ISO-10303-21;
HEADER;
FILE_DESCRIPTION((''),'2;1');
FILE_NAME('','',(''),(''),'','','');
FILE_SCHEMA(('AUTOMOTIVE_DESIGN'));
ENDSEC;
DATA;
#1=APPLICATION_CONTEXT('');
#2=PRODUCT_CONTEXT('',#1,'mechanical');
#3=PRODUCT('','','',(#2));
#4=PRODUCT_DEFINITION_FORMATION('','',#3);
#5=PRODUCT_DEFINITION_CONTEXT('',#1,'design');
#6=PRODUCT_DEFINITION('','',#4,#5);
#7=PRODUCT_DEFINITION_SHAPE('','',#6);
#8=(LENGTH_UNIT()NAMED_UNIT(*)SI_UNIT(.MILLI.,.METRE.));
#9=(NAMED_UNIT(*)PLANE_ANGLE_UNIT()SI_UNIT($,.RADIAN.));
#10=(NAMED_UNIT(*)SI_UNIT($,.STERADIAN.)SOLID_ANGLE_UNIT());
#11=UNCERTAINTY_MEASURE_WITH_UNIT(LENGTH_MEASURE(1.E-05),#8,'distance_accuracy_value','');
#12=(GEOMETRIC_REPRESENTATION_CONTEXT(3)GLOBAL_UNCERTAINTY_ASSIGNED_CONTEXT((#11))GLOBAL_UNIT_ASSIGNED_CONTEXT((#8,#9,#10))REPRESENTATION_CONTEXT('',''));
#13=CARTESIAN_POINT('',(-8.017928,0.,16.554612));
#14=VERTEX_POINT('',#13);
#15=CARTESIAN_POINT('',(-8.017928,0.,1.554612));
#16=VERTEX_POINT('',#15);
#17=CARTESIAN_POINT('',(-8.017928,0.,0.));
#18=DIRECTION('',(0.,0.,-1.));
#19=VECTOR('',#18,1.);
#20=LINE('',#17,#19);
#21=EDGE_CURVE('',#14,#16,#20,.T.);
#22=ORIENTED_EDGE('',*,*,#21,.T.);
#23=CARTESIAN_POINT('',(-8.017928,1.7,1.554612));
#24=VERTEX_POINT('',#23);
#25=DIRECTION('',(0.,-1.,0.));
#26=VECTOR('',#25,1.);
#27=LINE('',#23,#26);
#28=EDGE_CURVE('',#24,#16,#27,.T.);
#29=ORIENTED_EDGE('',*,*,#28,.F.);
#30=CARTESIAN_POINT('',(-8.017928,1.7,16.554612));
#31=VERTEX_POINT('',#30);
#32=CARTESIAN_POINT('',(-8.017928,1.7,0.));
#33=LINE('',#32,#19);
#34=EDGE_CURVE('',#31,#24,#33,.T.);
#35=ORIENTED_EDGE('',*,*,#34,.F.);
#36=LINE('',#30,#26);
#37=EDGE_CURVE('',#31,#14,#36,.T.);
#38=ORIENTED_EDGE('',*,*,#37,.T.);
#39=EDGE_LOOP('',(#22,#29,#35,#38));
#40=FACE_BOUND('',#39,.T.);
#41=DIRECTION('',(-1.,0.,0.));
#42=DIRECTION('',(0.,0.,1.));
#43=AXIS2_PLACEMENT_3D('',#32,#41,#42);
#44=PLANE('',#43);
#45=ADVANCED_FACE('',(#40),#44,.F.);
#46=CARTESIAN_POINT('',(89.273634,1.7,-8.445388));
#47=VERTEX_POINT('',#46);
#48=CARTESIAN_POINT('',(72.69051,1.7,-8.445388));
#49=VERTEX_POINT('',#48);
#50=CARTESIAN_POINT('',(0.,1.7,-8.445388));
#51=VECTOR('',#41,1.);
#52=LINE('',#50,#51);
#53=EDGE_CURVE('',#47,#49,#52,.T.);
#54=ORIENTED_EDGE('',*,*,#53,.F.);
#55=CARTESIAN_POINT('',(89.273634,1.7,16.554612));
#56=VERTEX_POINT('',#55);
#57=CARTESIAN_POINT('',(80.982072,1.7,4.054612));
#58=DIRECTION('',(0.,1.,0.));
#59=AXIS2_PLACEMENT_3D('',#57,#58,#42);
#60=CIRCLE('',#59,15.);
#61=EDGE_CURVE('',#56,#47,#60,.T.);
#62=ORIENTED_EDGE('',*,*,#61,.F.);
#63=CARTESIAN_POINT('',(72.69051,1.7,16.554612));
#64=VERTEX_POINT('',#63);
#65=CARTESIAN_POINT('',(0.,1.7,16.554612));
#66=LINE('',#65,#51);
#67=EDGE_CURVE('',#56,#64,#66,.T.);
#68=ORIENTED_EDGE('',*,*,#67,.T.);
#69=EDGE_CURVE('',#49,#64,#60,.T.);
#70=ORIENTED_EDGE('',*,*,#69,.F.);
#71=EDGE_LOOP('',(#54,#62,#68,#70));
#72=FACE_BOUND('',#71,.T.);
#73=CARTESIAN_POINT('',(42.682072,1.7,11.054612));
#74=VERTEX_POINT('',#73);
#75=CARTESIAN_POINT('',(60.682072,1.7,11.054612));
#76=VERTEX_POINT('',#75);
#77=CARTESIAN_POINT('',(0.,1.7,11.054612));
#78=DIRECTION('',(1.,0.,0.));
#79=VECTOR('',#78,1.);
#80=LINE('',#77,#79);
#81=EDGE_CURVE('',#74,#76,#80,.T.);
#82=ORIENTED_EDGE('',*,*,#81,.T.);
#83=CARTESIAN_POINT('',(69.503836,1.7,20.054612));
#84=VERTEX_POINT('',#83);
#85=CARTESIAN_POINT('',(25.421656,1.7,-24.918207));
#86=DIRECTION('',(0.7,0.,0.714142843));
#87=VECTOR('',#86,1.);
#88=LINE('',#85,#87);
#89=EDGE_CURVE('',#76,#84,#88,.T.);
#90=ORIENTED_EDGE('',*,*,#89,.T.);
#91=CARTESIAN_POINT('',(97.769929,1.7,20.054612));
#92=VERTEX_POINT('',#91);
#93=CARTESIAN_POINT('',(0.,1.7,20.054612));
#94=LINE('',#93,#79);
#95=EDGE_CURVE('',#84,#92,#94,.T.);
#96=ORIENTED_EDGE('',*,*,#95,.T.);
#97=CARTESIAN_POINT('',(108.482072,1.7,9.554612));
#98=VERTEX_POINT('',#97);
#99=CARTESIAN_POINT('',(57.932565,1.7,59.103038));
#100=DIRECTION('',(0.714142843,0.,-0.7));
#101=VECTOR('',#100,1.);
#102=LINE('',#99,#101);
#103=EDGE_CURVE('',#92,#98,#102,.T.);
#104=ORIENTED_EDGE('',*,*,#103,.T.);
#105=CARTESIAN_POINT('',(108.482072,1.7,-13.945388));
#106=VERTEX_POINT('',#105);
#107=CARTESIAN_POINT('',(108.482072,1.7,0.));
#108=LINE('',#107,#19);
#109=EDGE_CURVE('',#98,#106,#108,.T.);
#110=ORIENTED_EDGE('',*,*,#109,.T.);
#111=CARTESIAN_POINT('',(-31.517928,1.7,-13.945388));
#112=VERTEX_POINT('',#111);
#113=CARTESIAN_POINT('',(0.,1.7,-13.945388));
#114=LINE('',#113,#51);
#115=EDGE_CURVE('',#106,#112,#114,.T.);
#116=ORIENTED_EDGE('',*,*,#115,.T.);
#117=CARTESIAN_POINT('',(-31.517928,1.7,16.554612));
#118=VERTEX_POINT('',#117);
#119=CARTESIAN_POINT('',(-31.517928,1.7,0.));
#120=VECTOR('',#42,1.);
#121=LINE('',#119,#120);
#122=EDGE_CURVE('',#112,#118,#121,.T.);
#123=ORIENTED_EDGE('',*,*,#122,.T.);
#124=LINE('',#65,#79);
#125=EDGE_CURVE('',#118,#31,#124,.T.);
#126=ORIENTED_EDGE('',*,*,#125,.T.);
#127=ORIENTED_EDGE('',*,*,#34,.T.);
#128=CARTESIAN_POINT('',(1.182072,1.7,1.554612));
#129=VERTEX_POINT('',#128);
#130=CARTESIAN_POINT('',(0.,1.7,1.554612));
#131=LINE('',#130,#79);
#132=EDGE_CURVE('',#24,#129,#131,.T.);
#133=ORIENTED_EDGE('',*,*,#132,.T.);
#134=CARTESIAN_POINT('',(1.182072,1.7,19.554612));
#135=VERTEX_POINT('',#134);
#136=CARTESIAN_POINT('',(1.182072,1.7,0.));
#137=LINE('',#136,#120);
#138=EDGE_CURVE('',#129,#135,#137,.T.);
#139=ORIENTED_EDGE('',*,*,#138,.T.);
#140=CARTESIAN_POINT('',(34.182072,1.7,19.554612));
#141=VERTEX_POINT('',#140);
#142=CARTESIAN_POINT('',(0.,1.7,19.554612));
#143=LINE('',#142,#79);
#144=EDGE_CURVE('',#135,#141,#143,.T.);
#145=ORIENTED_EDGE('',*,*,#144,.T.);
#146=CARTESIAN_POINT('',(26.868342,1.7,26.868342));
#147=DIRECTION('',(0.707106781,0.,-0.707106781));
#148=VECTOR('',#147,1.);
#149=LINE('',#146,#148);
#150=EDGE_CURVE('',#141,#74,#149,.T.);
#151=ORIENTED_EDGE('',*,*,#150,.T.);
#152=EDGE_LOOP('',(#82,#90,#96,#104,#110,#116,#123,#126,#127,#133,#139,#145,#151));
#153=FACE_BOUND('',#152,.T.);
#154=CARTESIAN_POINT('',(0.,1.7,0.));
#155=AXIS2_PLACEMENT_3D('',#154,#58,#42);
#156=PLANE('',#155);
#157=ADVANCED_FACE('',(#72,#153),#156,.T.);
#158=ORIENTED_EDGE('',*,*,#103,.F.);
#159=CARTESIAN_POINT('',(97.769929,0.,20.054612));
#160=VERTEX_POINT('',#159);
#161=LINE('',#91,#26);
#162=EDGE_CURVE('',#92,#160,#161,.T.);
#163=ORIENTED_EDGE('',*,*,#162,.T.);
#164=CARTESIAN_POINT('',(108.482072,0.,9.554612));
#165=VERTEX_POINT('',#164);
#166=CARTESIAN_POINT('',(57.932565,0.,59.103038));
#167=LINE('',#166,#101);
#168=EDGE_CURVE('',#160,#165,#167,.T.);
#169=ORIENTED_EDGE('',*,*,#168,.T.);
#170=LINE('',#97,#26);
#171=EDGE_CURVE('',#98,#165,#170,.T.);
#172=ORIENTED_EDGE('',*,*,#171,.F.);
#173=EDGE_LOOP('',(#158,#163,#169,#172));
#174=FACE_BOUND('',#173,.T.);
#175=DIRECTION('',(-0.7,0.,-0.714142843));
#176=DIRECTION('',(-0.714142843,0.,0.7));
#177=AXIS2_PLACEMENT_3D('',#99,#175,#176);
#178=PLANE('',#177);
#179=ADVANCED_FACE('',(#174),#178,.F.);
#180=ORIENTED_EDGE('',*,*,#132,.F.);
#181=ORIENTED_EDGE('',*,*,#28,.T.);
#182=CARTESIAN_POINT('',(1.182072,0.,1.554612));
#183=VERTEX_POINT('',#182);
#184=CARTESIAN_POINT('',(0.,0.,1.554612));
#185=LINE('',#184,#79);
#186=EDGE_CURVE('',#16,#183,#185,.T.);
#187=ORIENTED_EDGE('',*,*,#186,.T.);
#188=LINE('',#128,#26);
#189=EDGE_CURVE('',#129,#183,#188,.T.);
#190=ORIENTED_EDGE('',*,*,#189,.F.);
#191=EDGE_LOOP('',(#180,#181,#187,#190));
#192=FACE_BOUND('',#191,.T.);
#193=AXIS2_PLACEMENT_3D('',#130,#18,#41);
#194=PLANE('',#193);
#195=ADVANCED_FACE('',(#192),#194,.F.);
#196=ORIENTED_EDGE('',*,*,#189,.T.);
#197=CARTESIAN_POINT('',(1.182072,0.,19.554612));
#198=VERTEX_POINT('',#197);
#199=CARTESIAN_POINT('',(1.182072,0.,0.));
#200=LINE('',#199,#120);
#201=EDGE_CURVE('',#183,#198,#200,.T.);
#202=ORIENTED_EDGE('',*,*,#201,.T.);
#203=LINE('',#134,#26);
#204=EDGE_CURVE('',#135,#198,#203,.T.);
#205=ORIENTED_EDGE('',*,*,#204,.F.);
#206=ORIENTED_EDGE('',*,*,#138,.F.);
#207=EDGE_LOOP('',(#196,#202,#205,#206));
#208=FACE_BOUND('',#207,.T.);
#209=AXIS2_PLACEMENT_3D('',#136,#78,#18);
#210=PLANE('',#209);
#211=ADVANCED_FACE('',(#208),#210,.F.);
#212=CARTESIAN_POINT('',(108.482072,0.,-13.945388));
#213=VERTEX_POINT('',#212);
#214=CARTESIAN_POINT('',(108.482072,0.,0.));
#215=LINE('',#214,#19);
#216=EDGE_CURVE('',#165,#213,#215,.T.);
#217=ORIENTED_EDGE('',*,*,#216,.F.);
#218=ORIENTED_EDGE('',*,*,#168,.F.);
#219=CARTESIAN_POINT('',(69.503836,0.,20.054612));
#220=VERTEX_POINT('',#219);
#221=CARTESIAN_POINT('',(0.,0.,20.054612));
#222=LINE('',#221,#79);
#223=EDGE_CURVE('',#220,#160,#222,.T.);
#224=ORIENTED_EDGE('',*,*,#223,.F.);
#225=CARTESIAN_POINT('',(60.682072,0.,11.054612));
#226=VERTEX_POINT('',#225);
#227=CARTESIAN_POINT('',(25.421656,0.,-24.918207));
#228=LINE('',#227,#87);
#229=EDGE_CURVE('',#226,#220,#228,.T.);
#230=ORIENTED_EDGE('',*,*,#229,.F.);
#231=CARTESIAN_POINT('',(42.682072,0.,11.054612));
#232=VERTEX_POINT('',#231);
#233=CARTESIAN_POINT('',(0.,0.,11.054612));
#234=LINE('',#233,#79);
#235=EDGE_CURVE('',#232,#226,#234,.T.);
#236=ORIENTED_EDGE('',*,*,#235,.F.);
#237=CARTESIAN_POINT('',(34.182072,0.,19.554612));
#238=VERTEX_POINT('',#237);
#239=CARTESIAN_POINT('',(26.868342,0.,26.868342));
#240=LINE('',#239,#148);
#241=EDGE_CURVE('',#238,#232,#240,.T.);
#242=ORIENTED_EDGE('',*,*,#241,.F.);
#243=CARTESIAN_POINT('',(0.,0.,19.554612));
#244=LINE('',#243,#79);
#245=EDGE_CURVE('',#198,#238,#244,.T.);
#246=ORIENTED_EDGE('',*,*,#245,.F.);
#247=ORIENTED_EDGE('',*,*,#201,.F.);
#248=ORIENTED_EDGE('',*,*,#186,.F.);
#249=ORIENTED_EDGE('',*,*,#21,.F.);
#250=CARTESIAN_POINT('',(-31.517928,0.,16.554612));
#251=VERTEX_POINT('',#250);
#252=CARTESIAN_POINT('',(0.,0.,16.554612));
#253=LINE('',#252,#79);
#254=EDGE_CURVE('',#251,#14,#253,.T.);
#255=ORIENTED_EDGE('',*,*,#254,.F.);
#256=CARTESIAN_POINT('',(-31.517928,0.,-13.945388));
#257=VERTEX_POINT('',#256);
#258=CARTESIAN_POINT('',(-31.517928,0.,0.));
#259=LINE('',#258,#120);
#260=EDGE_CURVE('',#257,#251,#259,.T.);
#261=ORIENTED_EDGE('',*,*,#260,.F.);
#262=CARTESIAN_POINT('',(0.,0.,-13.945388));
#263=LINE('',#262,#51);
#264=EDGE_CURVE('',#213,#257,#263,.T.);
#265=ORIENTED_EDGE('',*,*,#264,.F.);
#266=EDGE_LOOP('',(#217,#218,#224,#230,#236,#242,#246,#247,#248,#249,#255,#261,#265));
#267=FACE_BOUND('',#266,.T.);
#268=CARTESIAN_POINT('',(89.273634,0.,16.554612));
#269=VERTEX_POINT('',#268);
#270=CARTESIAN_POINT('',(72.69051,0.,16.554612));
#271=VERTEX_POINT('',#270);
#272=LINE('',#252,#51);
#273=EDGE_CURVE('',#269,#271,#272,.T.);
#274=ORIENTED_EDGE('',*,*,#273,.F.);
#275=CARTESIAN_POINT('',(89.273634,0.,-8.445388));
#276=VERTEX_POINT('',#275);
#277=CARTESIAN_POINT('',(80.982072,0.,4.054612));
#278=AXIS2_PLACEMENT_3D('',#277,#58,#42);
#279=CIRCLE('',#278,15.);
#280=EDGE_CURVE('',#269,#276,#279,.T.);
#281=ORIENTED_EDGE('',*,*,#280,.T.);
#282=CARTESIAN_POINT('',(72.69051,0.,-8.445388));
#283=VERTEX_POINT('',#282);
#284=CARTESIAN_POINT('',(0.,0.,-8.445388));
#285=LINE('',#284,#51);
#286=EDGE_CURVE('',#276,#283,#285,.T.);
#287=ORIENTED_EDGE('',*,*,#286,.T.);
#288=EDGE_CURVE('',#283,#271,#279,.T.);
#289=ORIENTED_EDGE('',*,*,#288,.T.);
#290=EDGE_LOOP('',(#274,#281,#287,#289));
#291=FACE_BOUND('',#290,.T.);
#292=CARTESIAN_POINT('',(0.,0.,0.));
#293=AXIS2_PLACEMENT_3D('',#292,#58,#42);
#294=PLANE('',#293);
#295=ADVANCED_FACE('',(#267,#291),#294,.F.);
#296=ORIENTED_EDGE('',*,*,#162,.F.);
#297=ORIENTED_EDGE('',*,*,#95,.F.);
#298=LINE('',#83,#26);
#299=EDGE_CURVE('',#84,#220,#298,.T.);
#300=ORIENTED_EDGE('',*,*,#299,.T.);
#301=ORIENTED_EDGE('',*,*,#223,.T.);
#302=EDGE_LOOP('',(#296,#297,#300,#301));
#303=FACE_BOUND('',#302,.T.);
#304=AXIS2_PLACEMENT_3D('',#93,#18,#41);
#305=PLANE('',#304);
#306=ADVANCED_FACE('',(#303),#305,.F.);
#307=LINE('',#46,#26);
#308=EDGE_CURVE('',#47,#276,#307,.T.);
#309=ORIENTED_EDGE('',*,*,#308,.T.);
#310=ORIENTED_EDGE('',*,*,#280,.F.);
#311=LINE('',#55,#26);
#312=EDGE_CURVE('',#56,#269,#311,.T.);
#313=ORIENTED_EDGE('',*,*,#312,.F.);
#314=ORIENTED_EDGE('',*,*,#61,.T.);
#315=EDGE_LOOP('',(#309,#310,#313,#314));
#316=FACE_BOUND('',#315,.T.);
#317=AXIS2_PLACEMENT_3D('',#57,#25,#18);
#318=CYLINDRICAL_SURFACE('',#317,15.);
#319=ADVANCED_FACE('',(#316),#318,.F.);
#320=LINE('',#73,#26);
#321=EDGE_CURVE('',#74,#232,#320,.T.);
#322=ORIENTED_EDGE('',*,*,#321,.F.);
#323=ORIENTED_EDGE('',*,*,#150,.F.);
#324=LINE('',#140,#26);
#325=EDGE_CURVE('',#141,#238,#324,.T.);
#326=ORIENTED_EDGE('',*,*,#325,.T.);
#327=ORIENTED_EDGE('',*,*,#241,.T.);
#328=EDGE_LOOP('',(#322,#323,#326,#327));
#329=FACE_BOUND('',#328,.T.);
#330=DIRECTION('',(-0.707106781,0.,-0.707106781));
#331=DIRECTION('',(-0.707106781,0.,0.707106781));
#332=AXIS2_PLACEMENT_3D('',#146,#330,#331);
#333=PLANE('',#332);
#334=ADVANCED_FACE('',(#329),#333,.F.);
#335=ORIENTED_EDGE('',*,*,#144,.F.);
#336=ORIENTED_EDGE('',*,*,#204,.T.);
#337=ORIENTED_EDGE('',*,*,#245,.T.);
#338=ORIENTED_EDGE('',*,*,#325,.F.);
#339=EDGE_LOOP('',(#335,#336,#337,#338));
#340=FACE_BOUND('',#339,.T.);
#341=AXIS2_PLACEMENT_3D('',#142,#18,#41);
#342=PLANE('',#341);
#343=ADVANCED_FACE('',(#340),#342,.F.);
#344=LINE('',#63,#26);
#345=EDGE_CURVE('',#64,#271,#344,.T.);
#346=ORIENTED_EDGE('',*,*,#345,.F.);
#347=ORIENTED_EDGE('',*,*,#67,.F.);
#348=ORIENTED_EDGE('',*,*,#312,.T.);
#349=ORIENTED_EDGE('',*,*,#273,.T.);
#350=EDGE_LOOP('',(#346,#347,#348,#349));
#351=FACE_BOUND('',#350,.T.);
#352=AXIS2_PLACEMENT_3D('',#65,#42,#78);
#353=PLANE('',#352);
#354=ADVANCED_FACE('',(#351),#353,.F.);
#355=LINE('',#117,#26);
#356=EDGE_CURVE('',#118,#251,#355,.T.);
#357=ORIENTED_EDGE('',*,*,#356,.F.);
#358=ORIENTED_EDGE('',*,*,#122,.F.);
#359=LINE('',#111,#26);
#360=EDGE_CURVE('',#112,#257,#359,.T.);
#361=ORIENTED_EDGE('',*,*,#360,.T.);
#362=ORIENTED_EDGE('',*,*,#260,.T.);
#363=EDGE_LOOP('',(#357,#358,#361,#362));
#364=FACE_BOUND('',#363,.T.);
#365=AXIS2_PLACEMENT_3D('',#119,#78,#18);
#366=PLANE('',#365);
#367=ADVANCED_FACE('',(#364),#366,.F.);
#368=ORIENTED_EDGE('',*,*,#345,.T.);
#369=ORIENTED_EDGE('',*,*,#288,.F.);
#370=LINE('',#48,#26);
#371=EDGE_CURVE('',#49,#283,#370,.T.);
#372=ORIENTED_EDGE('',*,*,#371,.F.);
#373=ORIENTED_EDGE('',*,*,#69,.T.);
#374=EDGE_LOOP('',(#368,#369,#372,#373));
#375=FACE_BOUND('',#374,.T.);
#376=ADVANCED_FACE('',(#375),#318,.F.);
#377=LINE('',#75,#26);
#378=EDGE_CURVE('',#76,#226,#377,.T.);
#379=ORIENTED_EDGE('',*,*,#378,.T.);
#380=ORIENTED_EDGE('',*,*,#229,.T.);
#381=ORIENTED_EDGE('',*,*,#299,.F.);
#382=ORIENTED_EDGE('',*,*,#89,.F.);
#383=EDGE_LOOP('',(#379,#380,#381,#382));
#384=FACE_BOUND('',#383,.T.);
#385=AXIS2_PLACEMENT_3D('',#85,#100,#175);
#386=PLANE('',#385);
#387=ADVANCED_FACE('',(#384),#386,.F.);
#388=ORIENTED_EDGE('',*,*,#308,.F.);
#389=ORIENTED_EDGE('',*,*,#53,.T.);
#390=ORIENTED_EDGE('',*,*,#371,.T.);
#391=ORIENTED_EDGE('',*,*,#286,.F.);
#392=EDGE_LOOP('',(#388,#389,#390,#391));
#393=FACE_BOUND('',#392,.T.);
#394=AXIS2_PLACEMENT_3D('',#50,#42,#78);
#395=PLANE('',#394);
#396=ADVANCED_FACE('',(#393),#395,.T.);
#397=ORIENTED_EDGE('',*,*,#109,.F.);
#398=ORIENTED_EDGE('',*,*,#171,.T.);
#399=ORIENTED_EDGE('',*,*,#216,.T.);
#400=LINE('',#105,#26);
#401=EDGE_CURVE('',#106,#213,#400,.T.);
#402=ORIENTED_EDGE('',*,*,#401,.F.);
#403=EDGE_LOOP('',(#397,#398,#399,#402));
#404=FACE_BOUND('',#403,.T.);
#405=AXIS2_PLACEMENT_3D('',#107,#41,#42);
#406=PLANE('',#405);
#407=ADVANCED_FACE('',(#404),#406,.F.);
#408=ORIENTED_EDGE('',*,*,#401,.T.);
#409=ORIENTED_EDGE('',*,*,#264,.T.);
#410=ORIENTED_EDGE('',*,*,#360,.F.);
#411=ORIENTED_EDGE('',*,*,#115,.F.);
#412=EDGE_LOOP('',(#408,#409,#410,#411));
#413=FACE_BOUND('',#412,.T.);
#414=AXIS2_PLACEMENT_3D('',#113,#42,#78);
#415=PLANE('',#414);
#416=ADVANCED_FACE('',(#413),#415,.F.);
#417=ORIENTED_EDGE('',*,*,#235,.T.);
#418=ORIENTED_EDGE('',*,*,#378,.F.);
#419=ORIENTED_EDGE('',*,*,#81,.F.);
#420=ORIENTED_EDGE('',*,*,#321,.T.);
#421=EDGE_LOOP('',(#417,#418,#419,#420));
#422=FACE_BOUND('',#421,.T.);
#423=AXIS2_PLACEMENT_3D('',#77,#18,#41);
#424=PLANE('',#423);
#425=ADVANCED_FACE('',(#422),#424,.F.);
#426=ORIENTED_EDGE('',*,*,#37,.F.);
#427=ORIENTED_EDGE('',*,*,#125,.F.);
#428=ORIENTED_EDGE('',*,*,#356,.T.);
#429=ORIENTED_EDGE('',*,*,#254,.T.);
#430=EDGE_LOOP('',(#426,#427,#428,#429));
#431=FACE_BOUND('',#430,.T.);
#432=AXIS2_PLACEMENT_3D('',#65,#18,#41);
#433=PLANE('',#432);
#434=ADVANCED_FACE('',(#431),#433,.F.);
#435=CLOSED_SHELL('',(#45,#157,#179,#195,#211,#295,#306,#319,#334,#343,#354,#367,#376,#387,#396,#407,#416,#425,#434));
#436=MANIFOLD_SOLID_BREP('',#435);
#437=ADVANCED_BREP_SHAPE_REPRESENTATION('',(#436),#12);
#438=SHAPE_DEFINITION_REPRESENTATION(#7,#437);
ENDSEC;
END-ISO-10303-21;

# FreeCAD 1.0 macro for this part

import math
import FreeCAD as App
import Part
import Sketcher

V = App.Vector
Q = App.Units.Quantity


def add_polygon(sketch, points):
    """Adds a closed chain of lines whose ends are joined by coincident constraints."""
    first, n = sketch.GeometryCount, len(points)
    for a, b in zip(points, points[1:] + points[:1]):
        sketch.addGeometry(Part.LineSegment(App.Vector(*a, 0), App.Vector(*b, 0)), False)
    for i in range(n):
        sketch.addConstraint(Sketcher.Constraint("Coincident", first + i, 2, first + (i + 1) % n, 1))

doc = App.newDocument("Part")
body = doc.addObject("PartDesign::Body", "Body")

sketch1 = doc.addObject("Sketcher::SketchObject", "Sketch")
body.addObject(sketch1)
sketch1.AttachmentSupport = (doc.XZ_Plane, [""])
sketch1.MapMode = "FlatFace"
add_polygon(sketch1, [(-8, 17), (-8, 2), (1, 2), (1, 20), (34, 20), (43, 11), (61, 11), (70, 20), (98, 20), (108, 10), (108, -14), (-32, -14), (-32, 17)])
sketch1.addGeometry(Part.ArcOfCircle(Part.Circle(V(81, 4, 0), V(0, 0, 1), 15), math.radians(124), math.radians(236)), False)
sketch1.addGeometry(Part.LineSegment(V(73, -8, 0), V(89, -8, 0)), False)
sketch1.addGeometry(Part.ArcOfCircle(Part.Circle(V(81, 4, 0), V(0, 0, 1), 15), math.radians(-56), math.radians(56)), False)
sketch1.addGeometry(Part.LineSegment(V(89, 17, 0), V(73, 17, 0)), False)
sketch1.addConstraint(Sketcher.Constraint("Coincident", 13, 2, 14, 1))
sketch1.addConstraint(Sketcher.Constraint("Coincident", 14, 2, 15, 1))
sketch1.addConstraint(Sketcher.Constraint("Coincident", 15, 2, 16, 1))
sketch1.addConstraint(Sketcher.Constraint("Coincident", 16, 2, 13, 1))
sketch1.addConstraint(Sketcher.Constraint("Vertical", 0))
sketch1.addConstraint(Sketcher.Constraint("Horizontal", 1))
sketch1.addConstraint(Sketcher.Constraint("Vertical", 2))
sketch1.addConstraint(Sketcher.Constraint("Horizontal", 3))
sketch1.addConstraint(Sketcher.Constraint("Horizontal", 5))
sketch1.addConstraint(Sketcher.Constraint("Horizontal", 7))
sketch1.addConstraint(Sketcher.Constraint("Vertical", 9))
sketch1.addConstraint(Sketcher.Constraint("Horizontal", 10))
sketch1.addConstraint(Sketcher.Constraint("Vertical", 11))
sketch1.addConstraint(Sketcher.Constraint("Horizontal", 12))
sketch1.addConstraint(Sketcher.Constraint("Horizontal", 14))
sketch1.addConstraint(Sketcher.Constraint("Horizontal", 16))
sketch1.addConstraint(Sketcher.Constraint("Coincident", 15, 3, 13, 3))
sketch1.addConstraint(Sketcher.Constraint("Equal", 13, 15))
sketch1.addConstraint(Sketcher.Constraint("Perpendicular", 6, 8))
sketch1.addConstraint(Sketcher.Constraint("Horizontal", 12, 2, 15, 2))
sketch1.addConstraint(Sketcher.Constraint("Vertical", 14, 2, 15, 2))
sketch1.addConstraint(Sketcher.Constraint("Equal", 5, 2))
sketch1.addConstraint(Sketcher.Constraint("Equal", 12, 9))
sketch1.addConstraint(Sketcher.Constraint("Radius", 13, 15.0))
sketch1.addConstraint(Sketcher.Constraint("DistanceX", 3, 1, 3, 2, 33.0))
sketch1.addConstraint(Sketcher.Constraint("DistanceX", 5, 1, 5, 2, 18.0))
sketch1.addConstraint(Sketcher.Constraint("DistanceX", 10, 2, 10, 1, 140.0))
sketch1.addConstraint(Sketcher.Constraint("DistanceY", 0, 2, 0, 1, 15.0))
sketch1.addConstraint(Sketcher.Constraint("Angle", 4, Q("-45 deg")))
sketch1.addConstraint(Sketcher.Constraint("Distance", 8, 15.0))
sketch1.addConstraint(Sketcher.Constraint("DistanceX", 1, 1, 1, 2, 9.2))
sketch1.addConstraint(Sketcher.Constraint("DistanceX", 12, 1, 12, 2, 23.5))
sketch1.addConstraint(Sketcher.Constraint("DistanceY", 11, 1, 11, 2, 30.5))
sketch1.addConstraint(Sketcher.Constraint("DistanceX", 0, 2, 13, 3, 89.0))
sketch1.addConstraint(Sketcher.Constraint("DistanceY", 13, 3, 4, 2, 7.0))
sketch1.addConstraint(Sketcher.Constraint("DistanceY", 5, 2, 6, 2, 9.0))
sketch1.addConstraint(Sketcher.Constraint("DistanceY", 9, 2, 13, 3, 18.0))
sketch1.addConstraint(Sketcher.Constraint("DistanceX", -1, 1, 13, 3, 80.982072))
sketch1.addConstraint(Sketcher.Constraint("DistanceY", -1, 1, 13, 3, 4.054612))
pad1 = doc.addObject("PartDesign::Pad", "Pad")
body.addObject(pad1)
pad1.Profile = sketch1
pad1.Length = 1.7
pad1.Reversed = True

doc.recompute()
